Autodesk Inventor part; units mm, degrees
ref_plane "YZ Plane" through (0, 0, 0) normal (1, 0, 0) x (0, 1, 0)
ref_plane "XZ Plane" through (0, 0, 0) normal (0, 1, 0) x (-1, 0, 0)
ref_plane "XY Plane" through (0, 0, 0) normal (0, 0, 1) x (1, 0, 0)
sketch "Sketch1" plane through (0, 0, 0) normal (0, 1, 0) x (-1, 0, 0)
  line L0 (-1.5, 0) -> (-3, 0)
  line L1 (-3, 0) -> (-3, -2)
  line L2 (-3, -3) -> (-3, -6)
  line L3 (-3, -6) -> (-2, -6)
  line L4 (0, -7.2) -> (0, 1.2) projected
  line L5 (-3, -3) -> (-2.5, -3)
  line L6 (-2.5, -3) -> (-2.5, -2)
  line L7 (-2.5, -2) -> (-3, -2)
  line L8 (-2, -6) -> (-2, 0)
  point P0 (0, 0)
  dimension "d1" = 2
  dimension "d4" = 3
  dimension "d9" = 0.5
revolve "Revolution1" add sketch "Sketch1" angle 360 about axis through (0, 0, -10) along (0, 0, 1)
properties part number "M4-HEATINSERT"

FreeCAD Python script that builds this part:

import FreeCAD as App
import Part
import Sketcher

V = App.Vector


def add_polygon(sketch, points):
    """Adds a closed chain of lines whose ends are joined by coincident constraints."""
    first, n = sketch.GeometryCount, len(points)
    for a, b in zip(points, points[1:] + points[:1]):
        sketch.addGeometry(Part.LineSegment(App.Vector(*a, 0), App.Vector(*b, 0)), False)
    for i in range(n):
        sketch.addConstraint(Sketcher.Constraint("Coincident", first + i, 2, first + (i + 1) % n, 1))

doc = App.newDocument("Part")
body = doc.addObject("PartDesign::Body", "Body")

# Sketch on XZ plane
sketch1 = doc.addObject("Sketcher::SketchObject", "Sketch")
body.addObject(sketch1)
sketch1.AttachmentSupport = (doc.XZ_Plane, [""])
sketch1.MapMode = "FlatFace"
add_polygon(sketch1, [(2, -6), (2, 0), (3, 0), (3, -2), (2.5, -2), (2.5, -3), (3, -3), (3, -6)])  # lines 0-7
sketch1.addConstraint([
    Sketcher.Constraint("Vertical", 0),
    Sketcher.Constraint("Horizontal", 1),
    Sketcher.Constraint("Vertical", 2),
    Sketcher.Constraint("Horizontal", 3),
    Sketcher.Constraint("Vertical", 4),
    Sketcher.Constraint("Horizontal", 5),
    Sketcher.Constraint("Vertical", 6),
    Sketcher.Constraint("Horizontal", 7),
    Sketcher.Constraint("PointOnObject", 0, 2, -1),
    Sketcher.Constraint("Vertical", 2, 2, 5, 2),
    Sketcher.Constraint("Equal", 7, 4),
    Sketcher.Constraint("DistanceY", 2, 2, 2, 1, 2.0),
    Sketcher.Constraint("DistanceY", 6, 2, 6, 1, 3.0),
    Sketcher.Constraint("DistanceX", 3, 2, 3, 1, 0.5),
    Sketcher.Constraint("DistanceX", -1, 1, 0, 2, 2.0),
    Sketcher.Constraint("DistanceX", -1, 1, 1, 2, 3.0),
])
revolution = doc.addObject("PartDesign::Revolution", "Revolution")
body.addObject(revolution)
revolution.Profile = sketch1
revolution.ReferenceAxis = (sketch1, ["V_Axis"])
revolution.Angle = 360

doc.recompute()
